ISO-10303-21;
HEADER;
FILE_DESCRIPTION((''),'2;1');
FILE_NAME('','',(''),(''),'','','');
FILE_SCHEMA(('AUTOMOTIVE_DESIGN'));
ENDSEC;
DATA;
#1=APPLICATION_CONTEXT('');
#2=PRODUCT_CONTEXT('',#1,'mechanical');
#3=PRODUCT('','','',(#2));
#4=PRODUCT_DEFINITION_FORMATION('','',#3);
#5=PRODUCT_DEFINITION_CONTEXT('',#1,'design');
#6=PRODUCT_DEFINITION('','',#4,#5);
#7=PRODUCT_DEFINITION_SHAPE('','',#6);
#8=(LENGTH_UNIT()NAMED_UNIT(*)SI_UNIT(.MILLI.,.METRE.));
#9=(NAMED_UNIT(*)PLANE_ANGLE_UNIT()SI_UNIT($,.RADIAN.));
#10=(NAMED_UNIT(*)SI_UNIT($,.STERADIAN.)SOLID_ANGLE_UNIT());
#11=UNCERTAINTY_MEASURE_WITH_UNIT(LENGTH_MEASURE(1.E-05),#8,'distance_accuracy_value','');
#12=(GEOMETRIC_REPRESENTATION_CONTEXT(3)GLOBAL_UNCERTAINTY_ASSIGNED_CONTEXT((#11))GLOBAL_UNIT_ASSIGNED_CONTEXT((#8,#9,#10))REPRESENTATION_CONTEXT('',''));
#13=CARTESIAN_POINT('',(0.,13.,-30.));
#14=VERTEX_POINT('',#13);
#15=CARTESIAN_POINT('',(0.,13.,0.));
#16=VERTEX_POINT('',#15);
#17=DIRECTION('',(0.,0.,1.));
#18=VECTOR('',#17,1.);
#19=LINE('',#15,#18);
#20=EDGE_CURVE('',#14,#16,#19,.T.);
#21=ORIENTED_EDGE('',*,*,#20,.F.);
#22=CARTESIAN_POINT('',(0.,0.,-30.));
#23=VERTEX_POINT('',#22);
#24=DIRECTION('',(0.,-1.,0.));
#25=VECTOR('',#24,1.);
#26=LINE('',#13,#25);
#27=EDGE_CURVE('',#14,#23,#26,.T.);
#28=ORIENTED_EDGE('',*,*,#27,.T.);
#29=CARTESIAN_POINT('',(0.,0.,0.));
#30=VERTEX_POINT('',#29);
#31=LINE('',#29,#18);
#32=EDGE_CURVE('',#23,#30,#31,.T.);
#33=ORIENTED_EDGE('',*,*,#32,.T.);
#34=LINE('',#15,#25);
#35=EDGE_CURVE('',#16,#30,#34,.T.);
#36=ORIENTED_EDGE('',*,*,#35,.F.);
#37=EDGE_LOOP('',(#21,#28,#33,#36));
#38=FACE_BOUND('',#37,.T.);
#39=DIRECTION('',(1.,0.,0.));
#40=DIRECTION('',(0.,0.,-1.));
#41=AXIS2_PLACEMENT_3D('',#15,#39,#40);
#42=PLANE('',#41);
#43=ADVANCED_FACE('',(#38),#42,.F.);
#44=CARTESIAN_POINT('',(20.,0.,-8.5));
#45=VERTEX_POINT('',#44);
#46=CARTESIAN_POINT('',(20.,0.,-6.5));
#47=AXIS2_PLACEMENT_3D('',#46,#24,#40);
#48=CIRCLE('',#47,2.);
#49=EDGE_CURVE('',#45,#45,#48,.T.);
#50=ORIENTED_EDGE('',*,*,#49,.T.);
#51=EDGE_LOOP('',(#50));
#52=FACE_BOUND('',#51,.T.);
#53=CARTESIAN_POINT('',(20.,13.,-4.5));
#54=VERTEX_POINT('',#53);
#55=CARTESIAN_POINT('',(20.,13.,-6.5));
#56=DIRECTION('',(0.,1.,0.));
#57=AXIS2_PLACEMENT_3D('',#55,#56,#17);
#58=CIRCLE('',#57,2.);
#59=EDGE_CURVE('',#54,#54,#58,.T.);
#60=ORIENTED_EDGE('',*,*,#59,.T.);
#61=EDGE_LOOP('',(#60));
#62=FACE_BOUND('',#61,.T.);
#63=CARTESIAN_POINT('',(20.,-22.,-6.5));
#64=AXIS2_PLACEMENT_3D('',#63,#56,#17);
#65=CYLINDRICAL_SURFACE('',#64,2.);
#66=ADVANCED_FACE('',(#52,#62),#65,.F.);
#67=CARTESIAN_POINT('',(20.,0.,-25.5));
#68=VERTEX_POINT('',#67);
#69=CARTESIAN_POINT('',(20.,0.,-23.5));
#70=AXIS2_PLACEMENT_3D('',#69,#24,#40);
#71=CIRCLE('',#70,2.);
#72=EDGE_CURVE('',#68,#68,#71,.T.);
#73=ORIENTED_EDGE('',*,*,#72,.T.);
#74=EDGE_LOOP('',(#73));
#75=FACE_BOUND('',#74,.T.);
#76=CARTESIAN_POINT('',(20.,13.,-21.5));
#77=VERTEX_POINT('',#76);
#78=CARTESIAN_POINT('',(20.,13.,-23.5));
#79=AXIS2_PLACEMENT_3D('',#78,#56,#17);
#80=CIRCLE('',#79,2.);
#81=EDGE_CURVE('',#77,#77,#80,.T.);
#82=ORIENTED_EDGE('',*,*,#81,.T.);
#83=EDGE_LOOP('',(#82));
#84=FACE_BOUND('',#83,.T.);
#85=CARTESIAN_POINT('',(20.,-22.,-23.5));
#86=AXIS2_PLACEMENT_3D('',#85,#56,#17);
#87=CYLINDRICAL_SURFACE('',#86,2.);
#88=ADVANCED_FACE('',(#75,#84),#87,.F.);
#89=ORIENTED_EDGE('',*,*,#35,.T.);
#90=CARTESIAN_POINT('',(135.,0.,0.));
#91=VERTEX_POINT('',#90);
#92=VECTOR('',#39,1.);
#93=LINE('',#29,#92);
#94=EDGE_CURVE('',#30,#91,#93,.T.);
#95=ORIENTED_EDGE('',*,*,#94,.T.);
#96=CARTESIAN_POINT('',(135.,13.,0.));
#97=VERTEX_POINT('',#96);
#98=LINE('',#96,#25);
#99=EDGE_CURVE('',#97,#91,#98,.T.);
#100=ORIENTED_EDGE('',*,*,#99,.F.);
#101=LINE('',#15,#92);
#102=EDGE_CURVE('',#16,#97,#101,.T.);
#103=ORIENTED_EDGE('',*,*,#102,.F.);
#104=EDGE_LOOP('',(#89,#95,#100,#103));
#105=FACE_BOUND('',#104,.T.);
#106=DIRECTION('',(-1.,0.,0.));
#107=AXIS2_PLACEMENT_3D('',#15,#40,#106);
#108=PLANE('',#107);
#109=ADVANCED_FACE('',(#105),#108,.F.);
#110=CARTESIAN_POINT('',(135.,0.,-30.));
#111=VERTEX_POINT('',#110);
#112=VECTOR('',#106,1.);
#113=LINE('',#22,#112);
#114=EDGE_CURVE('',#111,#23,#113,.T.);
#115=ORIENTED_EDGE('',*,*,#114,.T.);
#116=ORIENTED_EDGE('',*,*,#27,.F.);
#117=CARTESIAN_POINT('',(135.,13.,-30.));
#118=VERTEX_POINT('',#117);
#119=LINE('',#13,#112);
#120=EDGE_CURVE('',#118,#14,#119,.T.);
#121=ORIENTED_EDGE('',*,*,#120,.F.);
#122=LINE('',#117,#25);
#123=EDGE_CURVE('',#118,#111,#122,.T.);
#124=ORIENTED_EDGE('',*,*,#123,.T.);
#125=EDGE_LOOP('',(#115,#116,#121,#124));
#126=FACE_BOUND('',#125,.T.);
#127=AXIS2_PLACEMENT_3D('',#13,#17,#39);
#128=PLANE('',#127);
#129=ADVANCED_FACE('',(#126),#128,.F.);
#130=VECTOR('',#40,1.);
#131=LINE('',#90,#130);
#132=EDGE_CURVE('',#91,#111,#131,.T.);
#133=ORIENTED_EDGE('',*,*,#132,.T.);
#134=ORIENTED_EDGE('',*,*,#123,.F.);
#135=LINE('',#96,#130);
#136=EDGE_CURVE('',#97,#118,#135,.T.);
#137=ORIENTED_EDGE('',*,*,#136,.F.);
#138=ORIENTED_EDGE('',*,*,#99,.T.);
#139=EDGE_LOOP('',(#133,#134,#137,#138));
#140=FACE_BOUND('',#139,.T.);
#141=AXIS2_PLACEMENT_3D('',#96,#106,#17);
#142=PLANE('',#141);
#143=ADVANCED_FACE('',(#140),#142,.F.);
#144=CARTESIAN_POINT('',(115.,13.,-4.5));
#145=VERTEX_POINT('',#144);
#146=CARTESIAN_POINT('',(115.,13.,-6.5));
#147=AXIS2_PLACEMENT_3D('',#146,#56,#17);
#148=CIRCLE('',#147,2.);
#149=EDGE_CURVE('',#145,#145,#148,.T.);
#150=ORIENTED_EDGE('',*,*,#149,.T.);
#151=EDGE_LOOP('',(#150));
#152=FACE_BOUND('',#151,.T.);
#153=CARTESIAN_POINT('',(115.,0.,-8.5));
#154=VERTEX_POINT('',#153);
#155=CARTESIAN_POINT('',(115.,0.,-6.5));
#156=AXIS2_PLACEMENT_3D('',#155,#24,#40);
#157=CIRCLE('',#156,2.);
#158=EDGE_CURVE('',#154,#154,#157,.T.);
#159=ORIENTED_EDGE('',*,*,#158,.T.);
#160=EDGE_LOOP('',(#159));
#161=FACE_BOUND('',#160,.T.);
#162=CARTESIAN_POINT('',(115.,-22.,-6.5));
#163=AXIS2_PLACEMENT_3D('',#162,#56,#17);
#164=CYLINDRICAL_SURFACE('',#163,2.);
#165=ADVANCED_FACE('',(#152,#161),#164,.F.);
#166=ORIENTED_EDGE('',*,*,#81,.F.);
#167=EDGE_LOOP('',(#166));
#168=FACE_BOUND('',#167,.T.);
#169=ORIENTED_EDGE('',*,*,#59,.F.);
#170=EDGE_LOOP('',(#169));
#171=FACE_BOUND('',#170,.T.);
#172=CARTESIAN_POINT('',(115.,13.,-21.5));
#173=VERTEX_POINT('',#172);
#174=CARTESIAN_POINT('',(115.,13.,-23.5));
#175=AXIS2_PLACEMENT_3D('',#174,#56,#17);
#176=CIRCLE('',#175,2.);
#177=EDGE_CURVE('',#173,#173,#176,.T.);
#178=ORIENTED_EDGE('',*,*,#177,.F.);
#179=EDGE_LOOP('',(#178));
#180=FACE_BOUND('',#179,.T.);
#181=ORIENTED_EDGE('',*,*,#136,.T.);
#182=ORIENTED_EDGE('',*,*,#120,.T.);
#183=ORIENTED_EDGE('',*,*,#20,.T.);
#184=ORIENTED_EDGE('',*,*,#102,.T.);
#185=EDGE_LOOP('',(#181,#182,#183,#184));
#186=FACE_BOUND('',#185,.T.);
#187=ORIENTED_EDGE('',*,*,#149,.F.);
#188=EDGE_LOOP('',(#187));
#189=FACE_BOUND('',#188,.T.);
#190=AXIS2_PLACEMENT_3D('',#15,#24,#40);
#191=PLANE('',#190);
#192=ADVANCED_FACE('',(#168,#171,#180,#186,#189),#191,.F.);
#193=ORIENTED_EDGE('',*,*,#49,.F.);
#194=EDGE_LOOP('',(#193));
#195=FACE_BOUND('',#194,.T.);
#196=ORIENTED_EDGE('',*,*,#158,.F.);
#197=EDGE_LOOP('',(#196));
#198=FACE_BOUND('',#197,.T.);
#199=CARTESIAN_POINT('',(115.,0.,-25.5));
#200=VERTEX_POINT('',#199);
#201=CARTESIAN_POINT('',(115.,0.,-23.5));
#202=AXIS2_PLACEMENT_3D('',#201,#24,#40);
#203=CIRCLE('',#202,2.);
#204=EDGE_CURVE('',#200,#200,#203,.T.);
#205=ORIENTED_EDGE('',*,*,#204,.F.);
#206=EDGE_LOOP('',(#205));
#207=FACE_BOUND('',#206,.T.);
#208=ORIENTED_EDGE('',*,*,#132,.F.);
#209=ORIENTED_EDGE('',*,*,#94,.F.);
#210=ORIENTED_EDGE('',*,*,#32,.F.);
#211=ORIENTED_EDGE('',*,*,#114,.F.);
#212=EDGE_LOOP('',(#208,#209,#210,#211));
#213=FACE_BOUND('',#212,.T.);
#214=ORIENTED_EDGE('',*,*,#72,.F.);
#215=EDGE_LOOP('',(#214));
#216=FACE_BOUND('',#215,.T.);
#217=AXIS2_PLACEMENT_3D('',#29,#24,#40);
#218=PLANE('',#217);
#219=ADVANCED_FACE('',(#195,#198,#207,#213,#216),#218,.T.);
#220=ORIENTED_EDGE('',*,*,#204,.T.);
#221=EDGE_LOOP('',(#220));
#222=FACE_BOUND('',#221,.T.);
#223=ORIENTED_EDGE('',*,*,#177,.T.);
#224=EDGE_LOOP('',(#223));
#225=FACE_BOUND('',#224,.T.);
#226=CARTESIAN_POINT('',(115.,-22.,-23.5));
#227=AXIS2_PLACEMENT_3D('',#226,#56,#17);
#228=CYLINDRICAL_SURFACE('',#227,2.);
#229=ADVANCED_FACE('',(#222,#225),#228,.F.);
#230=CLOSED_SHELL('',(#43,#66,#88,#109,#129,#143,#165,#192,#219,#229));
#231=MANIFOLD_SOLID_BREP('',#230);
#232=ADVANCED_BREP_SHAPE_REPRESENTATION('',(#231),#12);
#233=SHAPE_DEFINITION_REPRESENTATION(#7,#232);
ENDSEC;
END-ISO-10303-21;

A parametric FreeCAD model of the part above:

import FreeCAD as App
import Part
import Sketcher
from FreeCAD import Vector


def add_polygon(sketch, points):
    """Adds a closed chain of lines whose ends are joined by coincident constraints."""
    first, n = sketch.GeometryCount, len(points)
    for a, b in zip(points, points[1:] + points[:1]):
        sketch.addGeometry(Part.LineSegment(App.Vector(*a, 0), App.Vector(*b, 0)), False)
    for i in range(n):
        sketch.addConstraint(Sketcher.Constraint("Coincident", first + i, 2, first + (i + 1) % n, 1))

doc = App.newDocument("Part")
body = doc.addObject("PartDesign::Body", "Body")

sketch1 = body.newObject("Sketcher::SketchObject", "Sketch")
sketch1.AttachmentSupport = (doc.getObject("XZ_Plane"), [""])
sketch1.MapMode = "FlatFace"
add_polygon(sketch1, [(0, -30), (0, 0), (135, 0), (135, -30)])
sketch1.addConstraint([
    Sketcher.Constraint("Vertical", 0),
    Sketcher.Constraint("Horizontal", 1),
    Sketcher.Constraint("Vertical", 2),
    Sketcher.Constraint("Horizontal", 3),
    Sketcher.Constraint("Coincident", 0, 2, -1, 1),
    Sketcher.Constraint("DistanceX", 1, 1, 1, 2, 135.0),
    Sketcher.Constraint("DistanceY", 0, 1, 0, 2, 30.0),
])
pad1 = body.newObject("PartDesign::Pad", "Pad")
pad1.Profile = sketch1
pad1.Length = 13
pad1.Reversed = True

sketch2 = body.newObject("Sketcher::SketchObject", "Sketch001")
sketch2.AttachmentSupport = (doc.getObject("XZ_Plane"), [""])
sketch2.MapMode = "FlatFace"
sketch2.AttachmentOffset = App.Placement(Vector(0, 0, -13), App.Rotation())
sketch2.addGeometry([
    Part.Circle(Vector(20, -23.5, 0), Vector(0, 0, 1), 2),
    Part.Circle(Vector(20, -6.5, 0), Vector(0, 0, 1), 2),
    Part.Circle(Vector(115, -23.5, 0), Vector(0, 0, 1), 2),
    Part.Circle(Vector(115, -6.5, 0), Vector(0, 0, 1), 2),
], False)
sketch2.addConstraint([
    Sketcher.Constraint("Equal", 0, 1),
    Sketcher.Constraint("Equal", 1, 2),
    Sketcher.Constraint("Equal", 2, 3),
    Sketcher.Constraint("Horizontal", 0, 3, 2, 3),
    Sketcher.Constraint("Horizontal", 1, 3, 3, 3),
    Sketcher.Constraint("Vertical", 0, 3, 1, 3),
    Sketcher.Constraint("Vertical", 2, 3, 3, 3),
    Sketcher.Constraint("Diameter", 0, 4.0),
    Sketcher.Constraint("DistanceX", -1, 1, 0, 3, 20.0),
    Sketcher.Constraint("DistanceX", -1, 1, 2, 3, 115.0),
    Sketcher.Constraint("DistanceY", 0, 3, 1, 3, 17.0),
    Sketcher.Constraint("DistanceY", 0, 3, -1, 1, 23.5),
])
pocket1 = body.newObject("PartDesign::Pocket", "Pocket")
pocket1.Profile = sketch2
pocket1.Length = 35
pocket1.Reversed = True

doc.recompute()
